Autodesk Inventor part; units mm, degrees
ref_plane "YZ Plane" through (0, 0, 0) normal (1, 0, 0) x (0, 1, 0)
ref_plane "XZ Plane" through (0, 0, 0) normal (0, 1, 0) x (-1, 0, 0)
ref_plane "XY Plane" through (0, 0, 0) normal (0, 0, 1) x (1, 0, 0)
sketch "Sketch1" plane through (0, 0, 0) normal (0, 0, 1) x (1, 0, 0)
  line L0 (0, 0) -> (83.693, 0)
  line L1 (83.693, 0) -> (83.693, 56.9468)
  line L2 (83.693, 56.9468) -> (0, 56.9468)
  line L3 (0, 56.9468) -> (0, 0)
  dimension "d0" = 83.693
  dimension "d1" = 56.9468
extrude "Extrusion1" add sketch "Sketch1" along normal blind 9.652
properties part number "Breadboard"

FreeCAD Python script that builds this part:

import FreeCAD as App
import Part
import Sketcher

V = App.Vector
Q = App.Units.Quantity


def add_polygon(sketch, points):
    """Adds a closed chain of lines whose ends are joined by coincident constraints."""
    first, n = sketch.GeometryCount, len(points)
    for a, b in zip(points, points[1:] + points[:1]):
        sketch.addGeometry(Part.LineSegment(App.Vector(*a, 0), App.Vector(*b, 0)), False)
    for i in range(n):
        sketch.addConstraint(Sketcher.Constraint("Coincident", first + i, 2, first + (i + 1) % n, 1))

doc = App.newDocument("Part")
body = doc.addObject("PartDesign::Body", "Body")

# Sketch on XY plane
sketch1 = body.newObject("Sketcher::SketchObject", "Sketch")
sketch1.AttachmentSupport = (doc.getObject("XY_Plane"), [""])
sketch1.MapMode = "FlatFace"
add_polygon(sketch1, [(0, 57), (0, 0), (84, 0), (84, 57)])  # lines 0-3
sketch1.addConstraint([
    Sketcher.Constraint("Vertical", 0),
    Sketcher.Constraint("Horizontal", 1),
    Sketcher.Constraint("Vertical", 2),
    Sketcher.Constraint("Horizontal", 3),
    Sketcher.Constraint("Coincident", 0, 2, -1, 1),
    Sketcher.Constraint("DistanceX", 1, 1, 1, 2, Q("3.295 in")),
    Sketcher.Constraint("DistanceY", 0, 2, 0, 1, Q("2.242 in")),
])
pad1 = body.newObject("PartDesign::Pad", "Pad")
pad1.Profile = sketch1
pad1.Length = Q("0.38 in")

doc.recompute()
